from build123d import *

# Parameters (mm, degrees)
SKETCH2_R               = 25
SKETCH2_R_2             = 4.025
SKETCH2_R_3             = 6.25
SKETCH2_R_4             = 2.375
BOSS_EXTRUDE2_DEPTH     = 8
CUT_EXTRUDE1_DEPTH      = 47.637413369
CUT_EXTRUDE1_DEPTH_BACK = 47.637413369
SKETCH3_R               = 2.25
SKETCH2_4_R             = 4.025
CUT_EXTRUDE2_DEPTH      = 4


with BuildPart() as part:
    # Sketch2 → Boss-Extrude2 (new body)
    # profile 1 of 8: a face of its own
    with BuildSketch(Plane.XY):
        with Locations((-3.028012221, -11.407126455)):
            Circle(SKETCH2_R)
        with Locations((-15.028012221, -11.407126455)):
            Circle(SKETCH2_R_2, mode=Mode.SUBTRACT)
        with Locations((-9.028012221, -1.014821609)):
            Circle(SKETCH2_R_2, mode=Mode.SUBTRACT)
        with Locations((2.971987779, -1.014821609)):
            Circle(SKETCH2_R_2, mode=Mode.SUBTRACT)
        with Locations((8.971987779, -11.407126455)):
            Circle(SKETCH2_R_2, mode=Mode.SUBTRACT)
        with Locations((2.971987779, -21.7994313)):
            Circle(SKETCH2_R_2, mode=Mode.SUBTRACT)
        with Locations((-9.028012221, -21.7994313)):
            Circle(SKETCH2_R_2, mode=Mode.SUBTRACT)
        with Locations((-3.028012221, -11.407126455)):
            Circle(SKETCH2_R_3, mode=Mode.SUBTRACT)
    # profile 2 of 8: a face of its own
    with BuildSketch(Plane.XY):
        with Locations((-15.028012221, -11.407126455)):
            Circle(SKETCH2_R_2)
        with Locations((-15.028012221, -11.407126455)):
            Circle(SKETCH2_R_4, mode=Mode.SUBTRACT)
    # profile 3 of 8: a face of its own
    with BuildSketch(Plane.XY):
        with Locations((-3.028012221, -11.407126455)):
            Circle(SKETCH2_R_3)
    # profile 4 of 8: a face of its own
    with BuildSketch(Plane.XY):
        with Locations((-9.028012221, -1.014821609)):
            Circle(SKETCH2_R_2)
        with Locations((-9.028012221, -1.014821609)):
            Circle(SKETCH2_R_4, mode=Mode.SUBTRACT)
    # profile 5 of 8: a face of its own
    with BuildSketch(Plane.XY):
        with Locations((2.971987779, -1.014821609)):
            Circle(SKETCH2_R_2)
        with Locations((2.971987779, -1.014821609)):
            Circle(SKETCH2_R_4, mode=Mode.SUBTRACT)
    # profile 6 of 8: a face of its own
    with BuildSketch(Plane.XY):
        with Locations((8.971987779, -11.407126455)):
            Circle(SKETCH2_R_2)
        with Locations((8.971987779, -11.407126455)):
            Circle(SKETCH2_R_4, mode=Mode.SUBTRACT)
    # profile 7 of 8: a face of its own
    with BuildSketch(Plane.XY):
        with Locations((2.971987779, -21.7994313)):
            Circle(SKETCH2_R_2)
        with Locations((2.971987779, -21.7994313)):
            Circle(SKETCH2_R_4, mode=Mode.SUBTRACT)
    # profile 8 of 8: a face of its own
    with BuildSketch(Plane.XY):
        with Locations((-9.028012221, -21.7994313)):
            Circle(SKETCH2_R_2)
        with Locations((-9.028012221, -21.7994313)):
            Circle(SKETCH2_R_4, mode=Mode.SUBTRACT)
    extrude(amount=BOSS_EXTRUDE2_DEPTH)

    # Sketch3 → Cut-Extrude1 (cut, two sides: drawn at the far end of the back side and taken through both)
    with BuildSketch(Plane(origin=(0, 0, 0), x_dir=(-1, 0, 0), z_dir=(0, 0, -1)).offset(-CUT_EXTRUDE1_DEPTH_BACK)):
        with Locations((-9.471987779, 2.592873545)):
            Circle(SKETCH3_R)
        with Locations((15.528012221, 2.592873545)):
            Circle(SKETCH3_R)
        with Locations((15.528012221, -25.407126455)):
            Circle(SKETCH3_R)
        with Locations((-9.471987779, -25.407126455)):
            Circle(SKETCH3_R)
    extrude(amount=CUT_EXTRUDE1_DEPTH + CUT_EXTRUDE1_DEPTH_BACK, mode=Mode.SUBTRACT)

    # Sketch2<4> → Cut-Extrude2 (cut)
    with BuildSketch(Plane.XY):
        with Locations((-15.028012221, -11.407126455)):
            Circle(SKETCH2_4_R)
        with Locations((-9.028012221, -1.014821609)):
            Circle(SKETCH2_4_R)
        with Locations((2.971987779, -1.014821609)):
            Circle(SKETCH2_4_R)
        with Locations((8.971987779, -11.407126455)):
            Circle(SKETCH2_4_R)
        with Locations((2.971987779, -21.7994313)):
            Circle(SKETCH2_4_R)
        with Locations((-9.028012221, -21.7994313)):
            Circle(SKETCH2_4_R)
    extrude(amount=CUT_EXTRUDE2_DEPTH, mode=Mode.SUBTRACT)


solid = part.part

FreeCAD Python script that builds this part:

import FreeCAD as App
import Part
import Sketcher
from FreeCAD import Vector
Q = App.Units.Quantity

doc = App.newDocument("Part")
body = doc.addObject("PartDesign::Body", "Body")

# Sketch on XY plane
sketch1 = body.newObject("Sketcher::SketchObject", "Sketch")
sketch1.AttachmentSupport = (doc.getObject("XY_Plane"), [""])
sketch1.MapMode = "FlatFace"
sketch1.addGeometry([
    Part.Circle(Vector(-3, -11.4, 0), Vector(0, 0, 1), 25),  # 0
    Part.Circle(Vector(-9, -21.8, 0), Vector(0, 0, 1), 2.4),  # 1
    Part.Circle(Vector(-15, -11.4, 0), Vector(0, 0, 1), 2.4),  # 2
    Part.Circle(Vector(3, -21.8, 0), Vector(0, 0, 1), 2.4),  # 3
    Part.Circle(Vector(9, -11.4, 0), Vector(0, 0, 1), 2.4),  # 4
    Part.Circle(Vector(-9, -1, 0), Vector(0, 0, 1), 2.4),  # 5
    Part.Circle(Vector(3, -1, 0), Vector(0, 0, 1), 2.4),  # 6
], False)
sketch1.addConstraint([
    Sketcher.Constraint("Equal", 1, 2),
    Sketcher.Constraint("Equal", 2, 3),
    Sketcher.Constraint("Equal", 3, 4),
    Sketcher.Constraint("Equal", 4, 5),
    Sketcher.Constraint("Equal", 5, 6),
    Sketcher.Constraint("Horizontal", 0, 3, 2, 3),
    Sketcher.Constraint("Horizontal", 1, 3, 3, 3),
    Sketcher.Constraint("Horizontal", 2, 3, 4, 3),
    Sketcher.Constraint("Horizontal", 5, 3, 6, 3),
    Sketcher.Constraint("Vertical", 1, 3, 5, 3),
    Sketcher.Constraint("Vertical", 3, 3, 6, 3),
    Sketcher.Constraint("Diameter", 0, Q("50 mm")),
    Sketcher.Constraint("Diameter", 1, Q("4.75 mm")),
    Sketcher.Constraint("DistanceX", 1, 3, 0, 3, Q("6 mm")),
    Sketcher.Constraint("DistanceX", 2, 3, 1, 3, Q("6 mm")),
    Sketcher.Constraint("DistanceX", 0, 3, 3, 3, Q("6 mm")),
    Sketcher.Constraint("DistanceX", 3, 3, 4, 3, Q("6 mm")),
    Sketcher.Constraint("DistanceY", 1, 3, -1, 1, Q("21.799431 mm")),
    Sketcher.Constraint("DistanceY", 5, 3, -1, 1, Q("1.014822 mm")),
    Sketcher.Constraint("DistanceX", 0, 3, -1, 1, Q("3.028012 mm")),
    Sketcher.Constraint("DistanceY", 0, 3, -1, 1, Q("11.407126 mm")),
])
pad1 = body.newObject("PartDesign::Pad", "Pad")
pad1.Profile = sketch1
pad1.Length = 8

# Sketch on XY plane
sketch2 = body.newObject("Sketcher::SketchObject", "Sketch001")
sketch2.AttachmentSupport = (doc.getObject("XY_Plane"), [""])
sketch2.MapMode = "FlatFace"
sketch2.addGeometry([
    Part.Circle(Vector(9.5, 2.6, 0), Vector(0, 0, 1), 2.2),
    Part.Circle(Vector(-15.5, 2.6, 0), Vector(0, 0, 1), 2.2),
    Part.Circle(Vector(-15.5, -25.4, 0), Vector(0, 0, 1), 2.2),
    Part.Circle(Vector(9.5, -25.4, 0), Vector(0, 0, 1), 2.2),
], False)
sketch2.addConstraint([
    Sketcher.Constraint("Equal", 0, 1),
    Sketcher.Constraint("Equal", 1, 2),
    Sketcher.Constraint("Equal", 2, 3),
    Sketcher.Constraint("Horizontal", 0, 3, 1, 3),
    Sketcher.Constraint("Horizontal", 2, 3, 3, 3),
    Sketcher.Constraint("Vertical", 1, 3, 2, 3),
    Sketcher.Constraint("Vertical", 0, 3, 3, 3),
    Sketcher.Constraint("Diameter", 0, Q("4.5 mm")),
    Sketcher.Constraint("DistanceX", 1, 3, 0, 3, Q("25 mm")),
    Sketcher.Constraint("DistanceY", 2, 3, 1, 3, Q("28 mm")),
    Sketcher.Constraint("DistanceX", -1, 1, 0, 3, Q("9.471988 mm")),
    Sketcher.Constraint("DistanceY", -1, 1, 0, 3, Q("2.592874 mm")),
])
pocket1 = body.newObject("PartDesign::Pocket", "Pocket")
pocket1.Profile = sketch2
pocket1.Type = "ThroughAll"
pocket1.Midplane = True

# Sketch on XY plane
sketch3 = body.newObject("Sketcher::SketchObject", "Sketch002")
sketch3.AttachmentSupport = (doc.getObject("XY_Plane"), [""])
sketch3.MapMode = "FlatFace"
sketch3.addGeometry([
    Part.Circle(Vector(-15, -11.4, 0), Vector(0, 0, 1), 4),  # 0
    Part.Circle(Vector(-9, -1, 0), Vector(0, 0, 1), 4),  # 1
    Part.Circle(Vector(3, -1, 0), Vector(0, 0, 1), 4),  # 2
    Part.Circle(Vector(9, -11.4, 0), Vector(0, 0, 1), 4),  # 3
    Part.Circle(Vector(3, -21.8, 0), Vector(0, 0, 1), 4),  # 4
    Part.Circle(Vector(-9, -21.8, 0), Vector(0, 0, 1), 4),  # 5
], False)
sketch3.addConstraint([
    Sketcher.Constraint("Equal", 0, 1),
    Sketcher.Constraint("Equal", 1, 2),
    Sketcher.Constraint("Equal", 2, 3),
    Sketcher.Constraint("Equal", 3, 4),
    Sketcher.Constraint("Equal", 4, 5),
    Sketcher.Constraint("Horizontal", 1, 3, 2, 3),
    Sketcher.Constraint("Horizontal", 0, 3, 3, 3),
    Sketcher.Constraint("Horizontal", 4, 3, 5, 3),
    Sketcher.Constraint("Vertical", 2, 3, 4, 3),
    Sketcher.Constraint("Vertical", 1, 3, 5, 3),
    Sketcher.Constraint("Diameter", 0, Q("8.05 mm")),
    Sketcher.Constraint("DistanceX", 0, 3, 1, 3, Q("6 mm")),
    Sketcher.Constraint("DistanceX", 1, 3, 2, 3, Q("12 mm")),
    Sketcher.Constraint("DistanceX", 2, 3, 3, 3, Q("6 mm")),
    Sketcher.Constraint("DistanceY", 1, 3, -1, 1, Q("1.014822 mm")),
    Sketcher.Constraint("DistanceY", 4, 3, -1, 1, Q("21.799431 mm")),
    Sketcher.Constraint("DistanceX", 0, 3, -1, 1, Q("15.028012 mm")),
    Sketcher.Constraint("DistanceY", 0, 3, -1, 1, Q("11.407126 mm")),
])
pocket2 = body.newObject("PartDesign::Pocket", "Pocket001")
pocket2.Profile = sketch3
pocket2.Length = 4
pocket2.Reversed = True

doc.recompute()
